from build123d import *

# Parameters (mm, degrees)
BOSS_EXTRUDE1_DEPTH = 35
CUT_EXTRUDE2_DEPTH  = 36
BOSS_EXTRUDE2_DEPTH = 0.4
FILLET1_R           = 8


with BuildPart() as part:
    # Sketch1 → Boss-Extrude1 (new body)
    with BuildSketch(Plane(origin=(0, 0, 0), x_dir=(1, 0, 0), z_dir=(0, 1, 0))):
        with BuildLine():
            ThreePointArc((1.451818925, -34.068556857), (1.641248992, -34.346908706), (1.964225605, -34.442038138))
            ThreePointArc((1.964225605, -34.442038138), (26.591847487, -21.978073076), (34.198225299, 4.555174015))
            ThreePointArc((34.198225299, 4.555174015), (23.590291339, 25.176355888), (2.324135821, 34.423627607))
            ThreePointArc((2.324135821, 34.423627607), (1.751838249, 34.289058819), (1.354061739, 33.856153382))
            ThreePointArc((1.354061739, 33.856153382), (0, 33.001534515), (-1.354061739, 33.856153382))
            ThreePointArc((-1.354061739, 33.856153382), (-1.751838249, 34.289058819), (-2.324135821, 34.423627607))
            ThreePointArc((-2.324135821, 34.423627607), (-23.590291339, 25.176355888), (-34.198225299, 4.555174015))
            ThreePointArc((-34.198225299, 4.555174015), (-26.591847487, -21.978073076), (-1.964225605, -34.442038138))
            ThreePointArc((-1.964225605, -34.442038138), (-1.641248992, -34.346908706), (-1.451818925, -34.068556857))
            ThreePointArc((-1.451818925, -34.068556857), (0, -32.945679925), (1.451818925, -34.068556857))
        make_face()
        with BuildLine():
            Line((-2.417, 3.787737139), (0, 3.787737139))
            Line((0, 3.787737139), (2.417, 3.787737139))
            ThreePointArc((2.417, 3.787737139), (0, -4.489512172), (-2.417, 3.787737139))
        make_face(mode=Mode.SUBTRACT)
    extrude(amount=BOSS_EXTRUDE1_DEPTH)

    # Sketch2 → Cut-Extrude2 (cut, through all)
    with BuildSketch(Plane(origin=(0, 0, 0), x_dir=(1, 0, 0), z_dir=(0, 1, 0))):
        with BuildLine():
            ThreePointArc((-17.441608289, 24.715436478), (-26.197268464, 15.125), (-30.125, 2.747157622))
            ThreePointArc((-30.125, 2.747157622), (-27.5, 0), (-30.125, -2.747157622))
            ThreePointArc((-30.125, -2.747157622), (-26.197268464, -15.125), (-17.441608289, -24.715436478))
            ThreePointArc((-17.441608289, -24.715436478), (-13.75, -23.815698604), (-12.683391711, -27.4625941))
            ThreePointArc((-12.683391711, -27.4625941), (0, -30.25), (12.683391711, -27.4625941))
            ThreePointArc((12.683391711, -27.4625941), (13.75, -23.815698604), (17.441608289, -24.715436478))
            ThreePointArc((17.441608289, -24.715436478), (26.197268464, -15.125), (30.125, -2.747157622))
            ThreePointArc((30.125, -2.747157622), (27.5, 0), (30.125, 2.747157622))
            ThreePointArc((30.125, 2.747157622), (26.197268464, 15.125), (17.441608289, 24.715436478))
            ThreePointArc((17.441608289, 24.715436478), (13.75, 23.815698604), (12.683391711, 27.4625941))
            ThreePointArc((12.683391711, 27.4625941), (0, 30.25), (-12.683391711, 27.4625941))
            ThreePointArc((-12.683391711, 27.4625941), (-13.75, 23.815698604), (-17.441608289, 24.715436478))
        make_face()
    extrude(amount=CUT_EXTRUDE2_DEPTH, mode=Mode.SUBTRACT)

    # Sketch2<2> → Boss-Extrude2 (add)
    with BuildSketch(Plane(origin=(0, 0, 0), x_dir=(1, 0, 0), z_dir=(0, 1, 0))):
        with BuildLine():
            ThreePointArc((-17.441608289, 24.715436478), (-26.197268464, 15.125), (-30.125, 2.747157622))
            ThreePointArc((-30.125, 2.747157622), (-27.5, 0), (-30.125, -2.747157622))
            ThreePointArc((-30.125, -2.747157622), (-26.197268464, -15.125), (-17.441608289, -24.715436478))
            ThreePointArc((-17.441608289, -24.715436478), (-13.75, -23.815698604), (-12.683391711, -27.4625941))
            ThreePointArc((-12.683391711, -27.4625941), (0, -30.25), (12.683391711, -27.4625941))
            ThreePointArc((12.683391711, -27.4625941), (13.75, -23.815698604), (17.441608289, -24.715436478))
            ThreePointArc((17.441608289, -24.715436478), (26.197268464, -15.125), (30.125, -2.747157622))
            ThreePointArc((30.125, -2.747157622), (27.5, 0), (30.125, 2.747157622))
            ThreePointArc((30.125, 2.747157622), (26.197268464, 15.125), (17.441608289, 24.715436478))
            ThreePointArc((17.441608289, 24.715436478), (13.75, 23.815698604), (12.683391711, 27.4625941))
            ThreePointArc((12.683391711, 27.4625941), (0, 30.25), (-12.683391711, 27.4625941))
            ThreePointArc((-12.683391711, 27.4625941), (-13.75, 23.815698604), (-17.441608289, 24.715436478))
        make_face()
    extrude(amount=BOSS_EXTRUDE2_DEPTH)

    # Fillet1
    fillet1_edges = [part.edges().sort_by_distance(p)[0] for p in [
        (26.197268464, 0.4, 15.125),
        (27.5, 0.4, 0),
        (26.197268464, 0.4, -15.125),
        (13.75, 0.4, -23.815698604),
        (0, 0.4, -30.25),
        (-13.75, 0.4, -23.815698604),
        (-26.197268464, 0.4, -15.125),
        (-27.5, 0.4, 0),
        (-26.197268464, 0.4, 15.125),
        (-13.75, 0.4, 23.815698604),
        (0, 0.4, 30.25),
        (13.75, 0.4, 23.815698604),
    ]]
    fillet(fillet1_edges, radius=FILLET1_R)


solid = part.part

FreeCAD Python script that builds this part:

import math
import FreeCAD as App
import Part
import Sketcher

V = App.Vector
Q = App.Units.Quantity


def edges_at(feature, points):
    """Names of the edges that pass closest to the given points."""
    edges = feature.Shape.Edges
    near = lambda p: min(range(len(edges)), key=lambda i: edges[i].distToShape(Part.Vertex(*p))[0])
    return sorted({f"Edge{near(p) + 1}" for p in points})

doc = App.newDocument("Part")
body = doc.addObject("PartDesign::Body", "Body")

sketch1 = doc.addObject("Sketcher::SketchObject", "Sketch")
body.addObject(sketch1)
sketch1.AttachmentSupport = (doc.XZ_Plane, [""])
sketch1.MapMode = "FlatFace"
sketch1.addGeometry([
    Part.ArcOfCircle(Part.Circle(V(1.9, 33.9, 0), V(0, 0, 1), 0.5), math.radians(87), math.radians(165)),
    Part.ArcOfCircle(Part.Circle(V(0, 0, 0), V(0, 0, 1), 34.5), math.radians(-8), math.radians(87)),
    Part.ArcOfCircle(Part.Circle(V(0, 0, 0), V(0, 0, 1), 34.5), math.radians(-86), math.radians(-8)),
    Part.ArcOfCircle(Part.Circle(V(2.3, -33.4, 0), V(0, 0, 1), 1), math.radians(-155), math.radians(-86)),
    Part.ArcOfCircle(Part.Circle(V(0, -34.5, 0), V(0, 0, 1), 1.5), math.radians(25), math.radians(155)),
    Part.ArcOfCircle(Part.Circle(V(-2.3, -33.4, 0), V(0, 0, 1), 1), math.radians(-94), math.radians(-25)),
    Part.ArcOfCircle(Part.Circle(V(0, 0, 0), V(0, 0, 1), 34.5), math.radians(-172), math.radians(-94)),
    Part.ArcOfCircle(Part.Circle(V(0, 0, 0), V(0, 0, 1), 34.5), math.radians(93), math.radians(188)),
    Part.ArcOfCircle(Part.Circle(V(-1.9, 33.9, 0), V(0, 0, 1), 0.5), math.radians(15), math.radians(93)),
    Part.ArcOfCircle(Part.Circle(V(0, 34.4, 0), V(0, 0, 1), 1.5), math.radians(-165), math.radians(-15)),
    Part.ArcOfCircle(Part.Circle(V(0, 0, 0), V(0, 0, 1), 4.5), math.radians(-57), math.radians(237)),
    Part.LineSegment(V(-2.4, -3.8, 0), V(2.4, -3.8, 0)),
], False)
sketch1.addConstraint([
    Sketcher.Constraint("Tangent", 0, 1, 1, 2),
    Sketcher.Constraint("Tangent", 1, 1, 2, 2),
    Sketcher.Constraint("Tangent", 2, 1, 3, 2),
    Sketcher.Constraint("Tangent", 3, 1, 4, 1),
    Sketcher.Constraint("Tangent", 4, 2, 5, 2),
    Sketcher.Constraint("Tangent", 5, 1, 6, 2),
    Sketcher.Constraint("Tangent", 6, 1, 7, 2),
    Sketcher.Constraint("Tangent", 7, 1, 8, 2),
    Sketcher.Constraint("Tangent", 8, 1, 9, 1),
    Sketcher.Constraint("Tangent", 9, 2, 0, 2),
    Sketcher.Constraint("Coincident", 10, 1, 11, 2),
    Sketcher.Constraint("Coincident", 11, 1, 10, 2),
    Sketcher.Constraint("Horizontal", 11),
    Sketcher.Constraint("Coincident", 6, 3, 1, 3),
    Sketcher.Constraint("Coincident", 10, 3, 1, 3),
    Sketcher.Constraint("Equal", 1, 2),
    Sketcher.Constraint("Equal", 3, 5),
    Sketcher.Constraint("Equal", 2, 6),
    Sketcher.Constraint("Equal", 6, 7),
    Sketcher.Constraint("Equal", 0, 8),
    Sketcher.Constraint("Equal", 4, 9),
    Sketcher.Constraint("Symmetric", 3, 3, 5, 3, -2),
    Sketcher.Constraint("PointOnObject", 9, 3, -2),
    Sketcher.Constraint("Horizontal", 1, 1, 6, 1),
    Sketcher.Constraint("Radius", 3, Q("1 mm")),
    Sketcher.Constraint("Radius", 0, Q("0.5 mm")),
    Sketcher.Constraint("Radius", 1, Q("34.5 mm")),
    Sketcher.Constraint("Radius", 4, Q("1.5 mm")),
    Sketcher.Constraint("DistanceX", 11, 1, 11, 2, Q("4.834 mm")),
    Sketcher.Constraint("DistanceY", 1, 3, -1, 1, Q("0.002001 mm")),
    Sketcher.Constraint("Radius", 10, Q("4.491513 mm")),
    Sketcher.Constraint("DistanceY", 3, 3, -1, 1, Q("33.425899 mm")),
    Sketcher.Constraint("DistanceX", -1, 1, 0, 3, Q("1.935759 mm")),
    Sketcher.Constraint("DistanceX", -1, 1, 1, 1, Q("34.198225 mm")),
])
pad1 = doc.addObject("PartDesign::Pad", "Pad")
body.addObject(pad1)
pad1.Profile = sketch1
pad1.Length = 35
pad1.Reversed = True

sketch2 = doc.addObject("Sketcher::SketchObject", "Sketch001")
body.addObject(sketch2)
sketch2.AttachmentSupport = (doc.XZ_Plane, [""])
sketch2.MapMode = "FlatFace"
sketch2.addGeometry([
    Part.ArcOfCircle(Part.Circle(V(0, 0, 0), V(0, 0, 1), 30.3), math.radians(-175), math.radians(-125)),
    Part.ArcOfCircle(Part.Circle(V(-30.2, 0, 0), V(0, 0, 1), 2.8), math.radians(-87), math.radians(87)),
    Part.ArcOfCircle(Part.Circle(V(0, 0, 0), V(0, 0, 1), 30.3), math.radians(125), math.radians(175)),
    Part.ArcOfCircle(Part.Circle(V(-15.1, 26.2, 0), V(0, 0, 1), 2.8), math.radians(-147), math.radians(27)),
    Part.ArcOfCircle(Part.Circle(V(0, 0, 0), V(0, 0, 1), 30.2), math.radians(65), math.radians(115)),
    Part.ArcOfCircle(Part.Circle(V(15.1, 26.2, 0), V(0, 0, 1), 2.8), math.radians(153), math.radians(327)),
    Part.ArcOfCircle(Part.Circle(V(0, 0, 0), V(0, 0, 1), 30.3), math.radians(5), math.radians(55)),
    Part.ArcOfCircle(Part.Circle(V(30.2, 0, 0), V(0, 0, 1), 2.8), math.radians(93), math.radians(267)),
    Part.ArcOfCircle(Part.Circle(V(0, 0, 0), V(0, 0, 1), 30.3), math.radians(-55), math.radians(-5)),
    Part.ArcOfCircle(Part.Circle(V(15.1, -26.2, 0), V(0, 0, 1), 2.8), math.radians(33), math.radians(207)),
    Part.ArcOfCircle(Part.Circle(V(0, 0, 0), V(0, 0, 1), 30.2), math.radians(-115), math.radians(-65)),
    Part.ArcOfCircle(Part.Circle(V(-15.1, -26.2, 0), V(0, 0, 1), 2.8), math.radians(-27), math.radians(147)),
], False)
sketch2.addConstraint([
    Sketcher.Constraint("Coincident", 0, 1, 1, 1),
    Sketcher.Constraint("Coincident", 1, 2, 2, 2),
    Sketcher.Constraint("Coincident", 2, 1, 3, 1),
    Sketcher.Constraint("Coincident", 3, 2, 4, 2),
    Sketcher.Constraint("Coincident", 4, 1, 5, 1),
    Sketcher.Constraint("Coincident", 5, 2, 6, 2),
    Sketcher.Constraint("Coincident", 6, 1, 7, 1),
    Sketcher.Constraint("Coincident", 7, 2, 8, 2),
    Sketcher.Constraint("Coincident", 8, 1, 9, 1),
    Sketcher.Constraint("Coincident", 9, 2, 10, 2),
    Sketcher.Constraint("Coincident", 10, 1, 11, 1),
    Sketcher.Constraint("Coincident", 11, 2, 0, 2),
    Sketcher.Constraint("Coincident", 0, 3, -1, 1),
    Sketcher.Constraint("Coincident", 2, 3, -1, 1),
    Sketcher.Constraint("Coincident", 4, 3, -1, 1),
    Sketcher.Constraint("Coincident", 6, 3, -1, 1),
    Sketcher.Constraint("Coincident", 8, 3, -1, 1),
    Sketcher.Constraint("Coincident", 10, 3, -1, 1),
    Sketcher.Constraint("Equal", 0, 2),
    Sketcher.Constraint("Equal", 1, 3),
    Sketcher.Constraint("Equal", 2, 4),
    Sketcher.Constraint("Equal", 3, 5),
    Sketcher.Constraint("Equal", 4, 6),
    Sketcher.Constraint("Equal", 5, 7),
    Sketcher.Constraint("Equal", 6, 8),
    Sketcher.Constraint("Equal", 7, 9),
    Sketcher.Constraint("Equal", 8, 10),
    Sketcher.Constraint("Equal", 9, 11),
    Sketcher.Constraint("Symmetric", 1, 3, 7, 3, -1, 1),
    Sketcher.Constraint("Symmetric", 3, 3, 9, 3, -1, 1),
    Sketcher.Constraint("Symmetric", 5, 3, 11, 3, -1, 1),
    Sketcher.Constraint("Symmetric", 3, 3, 5, 3, -2),
    Sketcher.Constraint("PointOnObject", 1, 3, -1),
    Sketcher.Constraint("Radius", 0, Q("30.25 mm")),
    Sketcher.Constraint("Radius", 1, Q("2.75 mm")),
    Sketcher.Constraint("DistanceX", 0, 1, 11, 3, Q("15 mm")),
    Sketcher.Constraint("DistanceX", 1, 3, -1, 1, Q("30.25 mm")),
    Sketcher.Constraint("DistanceY", -1, 1, 3, 3, Q("26.197268 mm")),
])
pocket1 = doc.addObject("PartDesign::Pocket", "Pocket")
body.addObject(pocket1)
pocket1.Profile = sketch2
pocket1.Type = "ThroughAll"

sketch3 = doc.addObject("Sketcher::SketchObject", "Sketch002")
body.addObject(sketch3)
sketch3.AttachmentSupport = (doc.XZ_Plane, [""])
sketch3.MapMode = "FlatFace"
sketch3.addGeometry([
    Part.ArcOfCircle(Part.Circle(V(0, 0, 0), V(0, 0, 1), 30.3), math.radians(-175), math.radians(-125)),
    Part.ArcOfCircle(Part.Circle(V(-30.2, 0, 0), V(0, 0, 1), 2.8), math.radians(-87), math.radians(87)),
    Part.ArcOfCircle(Part.Circle(V(0, 0, 0), V(0, 0, 1), 30.3), math.radians(125), math.radians(175)),
    Part.ArcOfCircle(Part.Circle(V(-15.1, 26.2, 0), V(0, 0, 1), 2.8), math.radians(-147), math.radians(27)),
    Part.ArcOfCircle(Part.Circle(V(0, 0, 0), V(0, 0, 1), 30.2), math.radians(65), math.radians(115)),
    Part.ArcOfCircle(Part.Circle(V(15.1, 26.2, 0), V(0, 0, 1), 2.8), math.radians(153), math.radians(327)),
    Part.ArcOfCircle(Part.Circle(V(0, 0, 0), V(0, 0, 1), 30.3), math.radians(5), math.radians(55)),
    Part.ArcOfCircle(Part.Circle(V(30.2, 0, 0), V(0, 0, 1), 2.8), math.radians(93), math.radians(267)),
    Part.ArcOfCircle(Part.Circle(V(0, 0, 0), V(0, 0, 1), 30.3), math.radians(-55), math.radians(-5)),
    Part.ArcOfCircle(Part.Circle(V(15.1, -26.2, 0), V(0, 0, 1), 2.8), math.radians(33), math.radians(207)),
    Part.ArcOfCircle(Part.Circle(V(0, 0, 0), V(0, 0, 1), 30.2), math.radians(-115), math.radians(-65)),
    Part.ArcOfCircle(Part.Circle(V(-15.1, -26.2, 0), V(0, 0, 1), 2.8), math.radians(-27), math.radians(147)),
], False)
sketch3.addConstraint([
    Sketcher.Constraint("Coincident", 0, 1, 1, 1),
    Sketcher.Constraint("Coincident", 1, 2, 2, 2),
    Sketcher.Constraint("Coincident", 2, 1, 3, 1),
    Sketcher.Constraint("Coincident", 3, 2, 4, 2),
    Sketcher.Constraint("Coincident", 4, 1, 5, 1),
    Sketcher.Constraint("Coincident", 5, 2, 6, 2),
    Sketcher.Constraint("Coincident", 6, 1, 7, 1),
    Sketcher.Constraint("Coincident", 7, 2, 8, 2),
    Sketcher.Constraint("Coincident", 8, 1, 9, 1),
    Sketcher.Constraint("Coincident", 9, 2, 10, 2),
    Sketcher.Constraint("Coincident", 10, 1, 11, 1),
    Sketcher.Constraint("Coincident", 11, 2, 0, 2),
    Sketcher.Constraint("Coincident", 0, 3, -1, 1),
    Sketcher.Constraint("Coincident", 2, 3, -1, 1),
    Sketcher.Constraint("Coincident", 4, 3, -1, 1),
    Sketcher.Constraint("Coincident", 6, 3, -1, 1),
    Sketcher.Constraint("Coincident", 8, 3, -1, 1),
    Sketcher.Constraint("Coincident", 10, 3, -1, 1),
    Sketcher.Constraint("Equal", 0, 2),
    Sketcher.Constraint("Equal", 1, 3),
    Sketcher.Constraint("Equal", 2, 4),
    Sketcher.Constraint("Equal", 3, 5),
    Sketcher.Constraint("Equal", 4, 6),
    Sketcher.Constraint("Equal", 5, 7),
    Sketcher.Constraint("Equal", 6, 8),
    Sketcher.Constraint("Equal", 7, 9),
    Sketcher.Constraint("Equal", 8, 10),
    Sketcher.Constraint("Equal", 9, 11),
    Sketcher.Constraint("Symmetric", 1, 3, 7, 3, -1, 1),
    Sketcher.Constraint("Symmetric", 3, 3, 9, 3, -1, 1),
    Sketcher.Constraint("Symmetric", 5, 3, 11, 3, -1, 1),
    Sketcher.Constraint("Symmetric", 3, 3, 5, 3, -2),
    Sketcher.Constraint("PointOnObject", 1, 3, -1),
    Sketcher.Constraint("Radius", 0, Q("30.25 mm")),
    Sketcher.Constraint("Radius", 1, Q("2.75 mm")),
    Sketcher.Constraint("DistanceX", 0, 1, 11, 3, Q("15 mm")),
    Sketcher.Constraint("DistanceX", 1, 3, -1, 1, Q("30.25 mm")),
    Sketcher.Constraint("DistanceY", -1, 1, 3, 3, Q("26.197268 mm")),
])
pad2 = doc.addObject("PartDesign::Pad", "Pad001")
body.addObject(pad2)
pad2.Profile = sketch3
pad2.Length = 0.4
pad2.Reversed = True
doc.recompute()

fillet = doc.addObject("PartDesign::Fillet", "Fillet")
body.addObject(fillet)
fillet.Base = (pad2, edges_at(pad2, [
    (26.197, 0.4, 15.125),
    (27.5, 0.4, 0),
    (26.197, 0.4, -15.125),
    (13.75, 0.4, -23.816),
    (0, 0.4, -30.25),
    (-13.75, 0.4, -23.816),
    (-26.197, 0.4, -15.125),
    (-27.5, 0.4, 0),
    (-26.197, 0.4, 15.125),
    (-13.75, 0.4, 23.816),
    (0, 0.4, 30.25),
    (13.75, 0.4, 23.816),
]))
fillet.Radius = 8

doc.recompute()
